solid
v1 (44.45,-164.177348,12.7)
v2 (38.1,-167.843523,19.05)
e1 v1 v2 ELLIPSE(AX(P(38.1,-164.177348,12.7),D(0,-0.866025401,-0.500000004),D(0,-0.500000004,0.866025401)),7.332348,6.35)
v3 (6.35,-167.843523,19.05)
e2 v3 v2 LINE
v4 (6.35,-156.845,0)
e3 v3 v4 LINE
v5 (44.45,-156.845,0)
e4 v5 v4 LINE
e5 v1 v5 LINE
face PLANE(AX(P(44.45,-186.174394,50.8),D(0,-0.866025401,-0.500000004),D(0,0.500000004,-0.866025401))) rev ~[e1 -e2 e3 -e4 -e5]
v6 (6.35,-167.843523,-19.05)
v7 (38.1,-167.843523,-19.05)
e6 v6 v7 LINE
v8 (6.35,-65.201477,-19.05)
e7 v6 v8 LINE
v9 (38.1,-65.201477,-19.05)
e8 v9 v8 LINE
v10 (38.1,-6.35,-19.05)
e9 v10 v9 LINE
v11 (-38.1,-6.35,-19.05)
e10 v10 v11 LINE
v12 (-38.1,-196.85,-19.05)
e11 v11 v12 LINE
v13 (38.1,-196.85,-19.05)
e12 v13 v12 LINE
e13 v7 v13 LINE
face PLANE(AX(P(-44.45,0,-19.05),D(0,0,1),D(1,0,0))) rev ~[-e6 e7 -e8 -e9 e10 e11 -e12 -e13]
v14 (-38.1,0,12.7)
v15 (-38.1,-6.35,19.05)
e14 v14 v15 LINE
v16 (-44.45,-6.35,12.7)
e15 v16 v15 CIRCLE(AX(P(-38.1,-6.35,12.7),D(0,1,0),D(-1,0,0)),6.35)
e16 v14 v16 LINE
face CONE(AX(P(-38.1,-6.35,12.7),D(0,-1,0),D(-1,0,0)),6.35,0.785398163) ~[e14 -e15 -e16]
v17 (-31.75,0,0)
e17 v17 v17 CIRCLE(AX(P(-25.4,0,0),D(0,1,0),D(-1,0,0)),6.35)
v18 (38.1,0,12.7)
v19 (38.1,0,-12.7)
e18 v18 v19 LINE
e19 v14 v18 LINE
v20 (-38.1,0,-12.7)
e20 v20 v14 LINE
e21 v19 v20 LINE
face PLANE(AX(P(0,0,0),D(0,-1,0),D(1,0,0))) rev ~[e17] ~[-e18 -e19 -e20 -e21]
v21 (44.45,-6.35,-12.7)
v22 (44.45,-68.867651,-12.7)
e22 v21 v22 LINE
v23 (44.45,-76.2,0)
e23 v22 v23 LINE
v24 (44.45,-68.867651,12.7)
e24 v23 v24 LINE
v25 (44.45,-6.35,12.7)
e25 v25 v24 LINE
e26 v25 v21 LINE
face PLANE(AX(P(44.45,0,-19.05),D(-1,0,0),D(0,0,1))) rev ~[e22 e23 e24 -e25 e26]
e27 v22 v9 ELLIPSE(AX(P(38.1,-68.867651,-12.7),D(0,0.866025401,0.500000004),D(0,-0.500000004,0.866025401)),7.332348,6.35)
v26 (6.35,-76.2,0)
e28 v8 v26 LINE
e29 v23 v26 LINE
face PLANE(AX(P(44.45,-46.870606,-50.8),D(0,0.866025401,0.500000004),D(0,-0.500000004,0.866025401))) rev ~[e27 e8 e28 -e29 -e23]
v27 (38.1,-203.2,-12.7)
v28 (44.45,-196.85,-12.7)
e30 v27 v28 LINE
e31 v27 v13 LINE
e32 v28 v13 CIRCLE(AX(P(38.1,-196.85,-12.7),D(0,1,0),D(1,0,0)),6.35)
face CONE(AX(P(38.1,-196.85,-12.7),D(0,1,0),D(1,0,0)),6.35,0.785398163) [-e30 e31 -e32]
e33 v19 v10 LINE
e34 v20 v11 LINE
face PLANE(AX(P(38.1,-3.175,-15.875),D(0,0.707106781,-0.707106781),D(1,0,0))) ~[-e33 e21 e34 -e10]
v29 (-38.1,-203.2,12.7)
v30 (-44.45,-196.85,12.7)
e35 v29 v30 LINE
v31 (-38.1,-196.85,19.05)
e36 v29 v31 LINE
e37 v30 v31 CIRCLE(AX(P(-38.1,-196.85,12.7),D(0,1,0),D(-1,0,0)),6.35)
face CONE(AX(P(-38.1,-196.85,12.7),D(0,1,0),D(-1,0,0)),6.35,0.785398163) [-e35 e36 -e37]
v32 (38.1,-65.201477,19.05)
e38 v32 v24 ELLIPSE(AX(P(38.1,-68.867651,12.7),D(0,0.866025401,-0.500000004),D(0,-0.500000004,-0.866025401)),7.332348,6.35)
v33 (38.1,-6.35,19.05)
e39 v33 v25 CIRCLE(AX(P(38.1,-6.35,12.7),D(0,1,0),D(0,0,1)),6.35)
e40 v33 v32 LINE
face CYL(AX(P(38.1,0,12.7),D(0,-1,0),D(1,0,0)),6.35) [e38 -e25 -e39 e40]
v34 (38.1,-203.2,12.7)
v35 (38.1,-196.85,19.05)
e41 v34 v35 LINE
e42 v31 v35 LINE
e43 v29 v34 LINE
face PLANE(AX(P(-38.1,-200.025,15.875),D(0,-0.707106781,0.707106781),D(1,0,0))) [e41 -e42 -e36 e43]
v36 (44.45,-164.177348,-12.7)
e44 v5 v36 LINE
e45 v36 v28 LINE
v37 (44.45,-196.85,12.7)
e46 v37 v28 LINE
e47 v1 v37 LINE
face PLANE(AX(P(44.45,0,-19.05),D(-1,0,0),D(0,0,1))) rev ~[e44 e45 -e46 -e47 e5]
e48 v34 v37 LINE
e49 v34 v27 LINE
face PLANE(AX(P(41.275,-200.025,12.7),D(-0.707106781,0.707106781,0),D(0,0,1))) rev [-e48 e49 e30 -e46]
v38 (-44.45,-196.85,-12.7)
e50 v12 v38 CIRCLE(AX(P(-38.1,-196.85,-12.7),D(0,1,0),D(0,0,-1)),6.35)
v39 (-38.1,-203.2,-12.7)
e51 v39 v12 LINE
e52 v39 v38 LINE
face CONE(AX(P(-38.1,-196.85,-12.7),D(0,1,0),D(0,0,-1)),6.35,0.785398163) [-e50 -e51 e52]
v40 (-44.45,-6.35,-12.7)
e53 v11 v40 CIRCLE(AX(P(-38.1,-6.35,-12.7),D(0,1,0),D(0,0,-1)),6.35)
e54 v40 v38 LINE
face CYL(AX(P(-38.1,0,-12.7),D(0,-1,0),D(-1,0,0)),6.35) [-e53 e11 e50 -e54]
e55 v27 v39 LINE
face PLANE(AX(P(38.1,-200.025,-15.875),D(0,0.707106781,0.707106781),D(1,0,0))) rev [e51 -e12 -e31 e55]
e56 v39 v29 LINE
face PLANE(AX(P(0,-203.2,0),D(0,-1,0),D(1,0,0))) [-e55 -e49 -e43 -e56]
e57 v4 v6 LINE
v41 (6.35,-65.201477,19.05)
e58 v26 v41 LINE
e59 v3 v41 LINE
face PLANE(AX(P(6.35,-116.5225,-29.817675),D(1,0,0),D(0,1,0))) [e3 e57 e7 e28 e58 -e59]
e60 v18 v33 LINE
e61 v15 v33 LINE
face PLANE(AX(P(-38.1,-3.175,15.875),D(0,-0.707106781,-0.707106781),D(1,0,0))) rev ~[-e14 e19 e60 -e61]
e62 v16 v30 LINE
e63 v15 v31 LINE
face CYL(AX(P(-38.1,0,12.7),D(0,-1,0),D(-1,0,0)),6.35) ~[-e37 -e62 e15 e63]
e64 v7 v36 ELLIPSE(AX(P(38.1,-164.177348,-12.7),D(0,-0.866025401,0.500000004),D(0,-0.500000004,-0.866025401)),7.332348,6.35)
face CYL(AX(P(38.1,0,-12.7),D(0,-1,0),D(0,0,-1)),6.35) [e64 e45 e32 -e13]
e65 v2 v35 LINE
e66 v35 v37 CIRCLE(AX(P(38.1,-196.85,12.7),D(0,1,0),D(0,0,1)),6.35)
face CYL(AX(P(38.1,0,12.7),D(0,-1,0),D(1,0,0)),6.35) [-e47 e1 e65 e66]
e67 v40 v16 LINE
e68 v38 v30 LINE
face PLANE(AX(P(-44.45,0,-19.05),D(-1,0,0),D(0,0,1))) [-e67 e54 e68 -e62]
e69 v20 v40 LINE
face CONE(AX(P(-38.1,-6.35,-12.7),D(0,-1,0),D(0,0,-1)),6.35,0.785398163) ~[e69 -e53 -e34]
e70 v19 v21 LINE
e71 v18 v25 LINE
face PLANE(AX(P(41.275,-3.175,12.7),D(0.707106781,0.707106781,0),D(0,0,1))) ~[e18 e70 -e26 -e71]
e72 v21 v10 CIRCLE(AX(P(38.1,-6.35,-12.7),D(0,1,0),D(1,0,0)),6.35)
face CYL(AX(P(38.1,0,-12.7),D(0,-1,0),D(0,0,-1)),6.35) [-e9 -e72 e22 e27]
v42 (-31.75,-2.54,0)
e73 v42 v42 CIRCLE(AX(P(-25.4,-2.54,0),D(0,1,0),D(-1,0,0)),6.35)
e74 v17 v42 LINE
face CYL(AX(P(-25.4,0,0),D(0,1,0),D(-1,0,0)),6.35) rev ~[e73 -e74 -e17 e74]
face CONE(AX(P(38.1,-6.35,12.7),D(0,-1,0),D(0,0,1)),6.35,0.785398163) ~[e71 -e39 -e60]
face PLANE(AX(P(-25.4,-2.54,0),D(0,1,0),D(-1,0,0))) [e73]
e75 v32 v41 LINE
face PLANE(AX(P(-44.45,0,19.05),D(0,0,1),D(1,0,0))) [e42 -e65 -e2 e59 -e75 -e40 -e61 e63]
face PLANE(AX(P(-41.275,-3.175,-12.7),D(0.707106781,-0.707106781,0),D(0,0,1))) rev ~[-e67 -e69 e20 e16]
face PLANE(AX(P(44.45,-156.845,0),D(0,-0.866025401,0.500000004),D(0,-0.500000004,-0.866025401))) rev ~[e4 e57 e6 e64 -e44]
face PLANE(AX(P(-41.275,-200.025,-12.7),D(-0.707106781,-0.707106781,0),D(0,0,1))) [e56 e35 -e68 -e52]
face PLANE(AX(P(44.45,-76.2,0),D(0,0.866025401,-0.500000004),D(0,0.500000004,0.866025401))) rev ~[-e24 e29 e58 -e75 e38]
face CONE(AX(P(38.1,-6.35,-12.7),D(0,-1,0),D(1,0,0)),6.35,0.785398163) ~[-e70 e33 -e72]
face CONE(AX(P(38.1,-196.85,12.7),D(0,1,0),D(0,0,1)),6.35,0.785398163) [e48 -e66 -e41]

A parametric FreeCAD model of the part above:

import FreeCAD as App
import Part
import Sketcher
from FreeCAD import Vector
Q = App.Units.Quantity


def edges_at(feature, points):
    """Names of the edges that pass closest to the given points."""
    edges = feature.Shape.Edges
    near = lambda p: min(range(len(edges)), key=lambda i: edges[i].distToShape(Part.Vertex(*p))[0])
    return sorted({f"Edge{near(p) + 1}" for p in points})

doc = App.newDocument("Part")
body = doc.addObject("PartDesign::Body", "Body")

# Sketch on XZ plane
sketch1 = body.newObject("Sketcher::SketchObject", "Sketch")
sketch1.AttachmentSupport = (doc.getObject("XZ_Plane"), [""])
sketch1.MapMode = "FlatFace"
sketch1.addGeometry(Part.LineSegment(Vector(-44, 19, 0), Vector(-44, -19, 0)), False)
sketch1.addGeometry(Part.LineSegment(Vector(-44, -19, 0), Vector(44, -19, 0)), False)
sketch1.addGeometry(Part.LineSegment(Vector(44, -19, 0), Vector(44, 19, 0)), False)
sketch1.addGeometry(Part.LineSegment(Vector(44, 19, 0), Vector(-44, 19, 0)), False)
sketch1.addConstraint(Sketcher.Constraint("Coincident", 0, 2, 1, 1))
sketch1.addConstraint(Sketcher.Constraint("Coincident", 1, 2, 2, 1))
sketch1.addConstraint(Sketcher.Constraint("Coincident", 2, 2, 3, 1))
sketch1.addConstraint(Sketcher.Constraint("Coincident", 3, 2, 0, 1))
sketch1.addConstraint(Sketcher.Constraint("Vertical", 0))
sketch1.addConstraint(Sketcher.Constraint("Horizontal", 1))
sketch1.addConstraint(Sketcher.Constraint("Vertical", 2))
sketch1.addConstraint(Sketcher.Constraint("Horizontal", 3))
sketch1.addConstraint(Sketcher.Constraint("Symmetric", 0, 2, 2, 2, -1, 1))
sketch1.addConstraint(Sketcher.Constraint("DistanceX", 1, 1, 1, 2, Q("3.5 in")))
sketch1.addConstraint(Sketcher.Constraint("DistanceY", 0, 2, 0, 1, Q("1.5 in")))
pad1 = body.newObject("PartDesign::Pad", "Pad")
pad1.Profile = sketch1
pad1.Length = Q("8 in")
doc.recompute()

fillet = body.newObject("PartDesign::Fillet", "Fillet")
fillet.Base = (pad1, edges_at(pad1, [
    (-44.45, -101.6, 19.05),
    (-44.45, -101.6, -19.05),
    (44.45, -101.6, 19.05),
    (44.45, -101.6, -19.05),
]))
fillet.Radius = Q("0.25 in")
doc.recompute()

chamfer = body.newObject("PartDesign::Chamfer", "Chamfer")
chamfer.Base = (fillet, edges_at(fillet, [(0, -203.2, 19.05)]))
chamfer.Size = Q("0.25 in")
doc.recompute()

chamfer2 = body.newObject("PartDesign::Chamfer", "Chamfer001")
chamfer2.Base = (chamfer, edges_at(chamfer, [(0, 0, 19.05)]))
chamfer2.Size = Q("0.25 in")

# Sketch on YZ plane
sketch2 = body.newObject("Sketcher::SketchObject", "Sketch001")
sketch2.AttachmentSupport = (doc.getObject("YZ_Plane"), [""])
sketch2.MapMode = "FlatFace"
sketch2.AttachmentOffset = App.Placement(Vector(0, 0, 1.75 * 25.4), App.Rotation())
sketch2.addGeometry(Part.LineSegment(Vector(-47, -51, 0), Vector(-76, 0, 0)), False)
sketch2.addGeometry(Part.LineSegment(Vector(-76, 0, 0), Vector(-47, 51, 0)), False)
sketch2.addGeometry(Part.LineSegment(Vector(-47, 51, 0), Vector(-186, 51, 0)), False)
sketch2.addGeometry(Part.LineSegment(Vector(-186, 51, 0), Vector(-157, 0, 0)), False)
sketch2.addGeometry(Part.LineSegment(Vector(-157, 0, 0), Vector(-186, -51, 0)), False)
sketch2.addGeometry(Part.LineSegment(Vector(-186, -51, 0), Vector(-47, -51, 0)), False)
sketch2.addConstraint(Sketcher.Constraint("Coincident", 0, 2, 1, 1))
sketch2.addConstraint(Sketcher.Constraint("Coincident", 1, 2, 2, 1))
sketch2.addConstraint(Sketcher.Constraint("Coincident", 2, 2, 3, 1))
sketch2.addConstraint(Sketcher.Constraint("Coincident", 3, 2, 4, 1))
sketch2.addConstraint(Sketcher.Constraint("Coincident", 4, 2, 5, 1))
sketch2.addConstraint(Sketcher.Constraint("Coincident", 5, 2, 0, 1))
sketch2.addConstraint(Sketcher.Constraint("Horizontal", 2))
sketch2.addConstraint(Sketcher.Constraint("Horizontal", 5))
sketch2.addConstraint(Sketcher.Constraint("Symmetric", 2, 2, 4, 2, -1))
sketch2.addConstraint(Sketcher.Constraint("PointOnObject", 0, 2, -1))
sketch2.addConstraint(Sketcher.Constraint("PointOnObject", 3, 2, -1))
sketch2.addConstraint(Sketcher.Constraint("Parallel", 0, 3))
sketch2.addConstraint(Sketcher.Constraint("Parallel", 1, 4))
sketch2.addConstraint(Sketcher.Constraint("DistanceX", 0, 2, -1, 1, Q("3 in")))
sketch2.addConstraint(Sketcher.Constraint("DistanceY", -1, 1, 1, 2, Q("2 in")))
sketch2.addConstraint(Sketcher.Constraint("Angle", 0, Q("120 deg")))
sketch2.addConstraint(Sketcher.Constraint("DistanceX", 3, 2, -1, 1, Q("6.175 in")))
pocket1 = body.newObject("PartDesign::Pocket", "Pocket")
pocket1.Profile = sketch2
pocket1.Length = Q("1.5 in")

# Sketch on XZ plane
sketch3 = body.newObject("Sketcher::SketchObject", "Sketch002")
sketch3.AttachmentSupport = (doc.getObject("XZ_Plane"), [""])
sketch3.MapMode = "FlatFace"
sketch3.addGeometry(Part.Circle(Vector(-25, 0, 0), Vector(0, 0, 1), 6), False)
sketch3.addConstraint(Sketcher.Constraint("PointOnObject", 0, 3, -1))
sketch3.addConstraint(Sketcher.Constraint("Diameter", 0, Q("0.5 in")))
sketch3.addConstraint(Sketcher.Constraint("DistanceX", 0, 3, -1, 1, Q("1 in")))
pocket2 = body.newObject("PartDesign::Pocket", "Pocket001")
pocket2.Profile = sketch3
pocket2.Length = Q("0.1 in")
pocket2.Reversed = True

doc.recompute()
